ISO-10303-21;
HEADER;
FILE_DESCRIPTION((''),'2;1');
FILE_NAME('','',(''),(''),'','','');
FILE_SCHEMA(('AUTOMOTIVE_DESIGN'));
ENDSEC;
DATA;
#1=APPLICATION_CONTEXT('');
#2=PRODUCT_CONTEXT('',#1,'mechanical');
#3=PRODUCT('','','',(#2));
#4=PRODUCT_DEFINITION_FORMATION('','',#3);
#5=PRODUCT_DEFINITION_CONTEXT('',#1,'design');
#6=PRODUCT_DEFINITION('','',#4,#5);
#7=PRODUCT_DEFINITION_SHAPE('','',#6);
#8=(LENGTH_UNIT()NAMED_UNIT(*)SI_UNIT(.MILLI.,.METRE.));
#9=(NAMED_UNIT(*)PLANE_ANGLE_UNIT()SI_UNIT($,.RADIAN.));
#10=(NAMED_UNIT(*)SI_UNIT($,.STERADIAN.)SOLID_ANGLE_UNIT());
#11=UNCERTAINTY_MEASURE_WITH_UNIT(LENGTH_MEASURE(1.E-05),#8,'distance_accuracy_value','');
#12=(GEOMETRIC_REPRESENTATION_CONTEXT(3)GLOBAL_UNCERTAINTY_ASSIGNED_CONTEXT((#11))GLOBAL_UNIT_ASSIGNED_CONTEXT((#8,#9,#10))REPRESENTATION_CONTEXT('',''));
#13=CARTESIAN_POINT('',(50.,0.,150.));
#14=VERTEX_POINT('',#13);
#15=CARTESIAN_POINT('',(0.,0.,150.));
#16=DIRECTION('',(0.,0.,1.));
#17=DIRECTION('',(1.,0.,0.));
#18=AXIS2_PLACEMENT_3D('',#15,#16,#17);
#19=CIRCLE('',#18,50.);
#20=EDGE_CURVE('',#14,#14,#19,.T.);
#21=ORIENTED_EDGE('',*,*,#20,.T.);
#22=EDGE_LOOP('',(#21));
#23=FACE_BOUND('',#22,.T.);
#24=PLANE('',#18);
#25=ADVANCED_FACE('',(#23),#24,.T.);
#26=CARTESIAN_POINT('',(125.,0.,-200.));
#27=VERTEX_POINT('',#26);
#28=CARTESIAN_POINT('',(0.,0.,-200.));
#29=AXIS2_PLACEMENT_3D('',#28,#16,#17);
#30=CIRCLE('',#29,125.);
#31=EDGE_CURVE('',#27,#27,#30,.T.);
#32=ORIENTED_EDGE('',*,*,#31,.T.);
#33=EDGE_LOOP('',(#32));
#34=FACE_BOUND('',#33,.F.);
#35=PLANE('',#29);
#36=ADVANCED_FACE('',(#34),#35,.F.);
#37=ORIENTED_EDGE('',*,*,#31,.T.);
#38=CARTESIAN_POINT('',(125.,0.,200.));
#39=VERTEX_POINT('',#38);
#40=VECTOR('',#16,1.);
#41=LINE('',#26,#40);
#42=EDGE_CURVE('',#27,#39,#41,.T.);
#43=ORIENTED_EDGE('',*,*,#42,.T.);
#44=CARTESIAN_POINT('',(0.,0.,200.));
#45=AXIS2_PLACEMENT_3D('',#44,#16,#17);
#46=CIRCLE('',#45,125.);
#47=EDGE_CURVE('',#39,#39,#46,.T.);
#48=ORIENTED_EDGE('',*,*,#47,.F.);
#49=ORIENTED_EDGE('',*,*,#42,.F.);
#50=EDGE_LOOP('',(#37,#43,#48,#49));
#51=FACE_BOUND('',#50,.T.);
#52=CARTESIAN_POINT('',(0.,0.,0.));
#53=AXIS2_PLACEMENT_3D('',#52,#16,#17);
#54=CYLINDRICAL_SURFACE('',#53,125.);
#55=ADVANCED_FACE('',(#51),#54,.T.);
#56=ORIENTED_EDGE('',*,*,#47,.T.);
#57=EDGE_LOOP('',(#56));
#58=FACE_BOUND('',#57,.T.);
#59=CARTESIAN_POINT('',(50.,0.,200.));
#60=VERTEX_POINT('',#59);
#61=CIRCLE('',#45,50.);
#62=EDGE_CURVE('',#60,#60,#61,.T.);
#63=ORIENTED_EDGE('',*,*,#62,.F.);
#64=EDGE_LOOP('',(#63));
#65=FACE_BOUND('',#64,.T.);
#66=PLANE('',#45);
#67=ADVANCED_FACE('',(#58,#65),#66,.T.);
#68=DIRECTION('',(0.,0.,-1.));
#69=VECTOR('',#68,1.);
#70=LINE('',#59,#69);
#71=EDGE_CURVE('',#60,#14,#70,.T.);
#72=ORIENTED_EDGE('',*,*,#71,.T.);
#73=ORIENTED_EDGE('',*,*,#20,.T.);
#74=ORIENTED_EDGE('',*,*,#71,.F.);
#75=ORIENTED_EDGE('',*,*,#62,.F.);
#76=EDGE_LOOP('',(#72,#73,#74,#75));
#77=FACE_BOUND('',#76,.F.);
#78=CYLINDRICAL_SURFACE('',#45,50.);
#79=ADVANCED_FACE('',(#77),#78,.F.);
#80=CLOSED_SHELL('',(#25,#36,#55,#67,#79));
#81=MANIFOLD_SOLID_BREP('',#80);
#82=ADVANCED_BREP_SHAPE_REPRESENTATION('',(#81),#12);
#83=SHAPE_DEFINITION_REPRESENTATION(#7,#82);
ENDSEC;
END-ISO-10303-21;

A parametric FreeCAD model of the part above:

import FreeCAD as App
import Part
import Sketcher
Q = App.Units.Quantity

doc = App.newDocument("Part")
body = doc.addObject("PartDesign::Body", "Body")

# Sketch on XY plane
sketch1 = doc.addObject("Sketcher::SketchObject", "Sketch")
body.addObject(sketch1)
sketch1.AttachmentSupport = (doc.XY_Plane, [""])
sketch1.MapMode = "FlatFace"
sketch1.addGeometry(Part.Circle(App.Vector(0, 0, 0), App.Vector(0, 0, 1), 125), False)
sketch1.addConstraint([
    Sketcher.Constraint("Coincident", 0, 3, -1, 1),
    Sketcher.Constraint("Diameter", 0, Q("250 mm")),
])
pad1 = doc.addObject("PartDesign::Pad", "Pad")
body.addObject(pad1)
pad1.Profile = sketch1
pad1.Length = 400
pad1.Midplane = True

# Sketch on XY plane
sketch2 = doc.addObject("Sketcher::SketchObject", "Sketch001")
body.addObject(sketch2)
sketch2.AttachmentSupport = (doc.XY_Plane, [""])
sketch2.MapMode = "FlatFace"
sketch2.AttachmentOffset = App.Placement(App.Vector(0, 0, 200), App.Rotation())
sketch2.addGeometry(Part.Circle(App.Vector(0, 0, 0), App.Vector(0, 0, 1), 50), False)
sketch2.addConstraint([
    Sketcher.Constraint("Coincident", 0, 3, -1, 1),
    Sketcher.Constraint("Diameter", 0, Q("100 mm")),
])
pocket1 = doc.addObject("PartDesign::Pocket", "Pocket")
body.addObject(pocket1)
pocket1.Profile = sketch2
pocket1.Length = 50

doc.recompute()
